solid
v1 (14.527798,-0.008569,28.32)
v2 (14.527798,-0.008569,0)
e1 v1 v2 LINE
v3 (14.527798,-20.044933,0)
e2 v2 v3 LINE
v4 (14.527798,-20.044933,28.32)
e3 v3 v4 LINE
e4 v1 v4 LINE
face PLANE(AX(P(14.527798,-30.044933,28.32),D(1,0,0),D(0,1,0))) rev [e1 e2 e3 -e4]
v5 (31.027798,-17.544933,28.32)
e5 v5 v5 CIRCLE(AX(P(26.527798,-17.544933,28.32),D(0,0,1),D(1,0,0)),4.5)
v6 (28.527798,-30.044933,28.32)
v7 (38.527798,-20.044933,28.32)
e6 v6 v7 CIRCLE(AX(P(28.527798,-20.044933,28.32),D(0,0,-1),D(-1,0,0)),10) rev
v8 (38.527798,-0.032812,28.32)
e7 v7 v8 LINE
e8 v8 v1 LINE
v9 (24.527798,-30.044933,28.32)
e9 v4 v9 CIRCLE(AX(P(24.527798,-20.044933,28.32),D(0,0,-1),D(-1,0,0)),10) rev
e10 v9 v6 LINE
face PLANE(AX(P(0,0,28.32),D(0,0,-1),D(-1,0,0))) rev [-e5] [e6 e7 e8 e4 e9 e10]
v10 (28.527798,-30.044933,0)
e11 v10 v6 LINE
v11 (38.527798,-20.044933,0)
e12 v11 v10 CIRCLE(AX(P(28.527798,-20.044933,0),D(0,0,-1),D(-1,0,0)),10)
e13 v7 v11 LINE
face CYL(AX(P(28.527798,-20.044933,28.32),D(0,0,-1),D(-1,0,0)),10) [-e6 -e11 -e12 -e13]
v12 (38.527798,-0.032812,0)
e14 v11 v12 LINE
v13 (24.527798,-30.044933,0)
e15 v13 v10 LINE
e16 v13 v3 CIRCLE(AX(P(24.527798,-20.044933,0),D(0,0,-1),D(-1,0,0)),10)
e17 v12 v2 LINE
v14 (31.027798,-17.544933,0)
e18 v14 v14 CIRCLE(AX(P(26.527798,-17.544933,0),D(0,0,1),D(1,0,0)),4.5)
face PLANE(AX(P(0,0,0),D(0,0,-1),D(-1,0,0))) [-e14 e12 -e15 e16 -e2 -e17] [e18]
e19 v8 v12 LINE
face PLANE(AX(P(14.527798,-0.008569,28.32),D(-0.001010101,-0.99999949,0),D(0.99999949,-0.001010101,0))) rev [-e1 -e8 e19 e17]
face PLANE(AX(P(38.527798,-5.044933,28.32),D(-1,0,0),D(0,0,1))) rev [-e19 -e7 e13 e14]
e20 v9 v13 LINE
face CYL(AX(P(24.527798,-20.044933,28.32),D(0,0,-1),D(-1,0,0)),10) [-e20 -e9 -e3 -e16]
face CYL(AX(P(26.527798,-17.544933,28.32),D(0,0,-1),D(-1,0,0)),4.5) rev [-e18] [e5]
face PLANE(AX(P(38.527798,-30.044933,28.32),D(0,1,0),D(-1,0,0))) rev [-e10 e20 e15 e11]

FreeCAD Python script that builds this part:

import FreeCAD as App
import Part
import Sketcher
Q = App.Units.Quantity


def edges_at(feature, points):
    """Names of the edges that pass closest to the given points."""
    edges = feature.Shape.Edges
    near = lambda p: min(range(len(edges)), key=lambda i: edges[i].distToShape(Part.Vertex(*p))[0])
    return sorted({f"Edge{near(p) + 1}" for p in points})

doc = App.newDocument("Part")
body = doc.addObject("PartDesign::Body", "Body")

sketch1 = doc.addObject("Sketcher::SketchObject", "Sketch")
body.addObject(sketch1)
sketch1.AttachmentSupport = (doc.XY_Plane, [""])
sketch1.MapMode = "FlatFace"
sketch1.addGeometry(Part.LineSegment(App.Vector(38.527798, -0.032812, 0), App.Vector(14.527798, -0.008569, 0)), False)
sketch1.addGeometry(Part.LineSegment(App.Vector(14.527798, -0.008569, 0), App.Vector(14.527798, -30.044933, 0)), False)
sketch1.addGeometry(Part.LineSegment(App.Vector(14.527798, -30.044933, 0), App.Vector(38.527798, -30.044933, 0)), False)
sketch1.addGeometry(Part.LineSegment(App.Vector(38.527798, -30.044933, 0), App.Vector(38.527798, -0.032812, 0)), False)
sketch1.addGeometry(Part.Circle(App.Vector(26.527798, -17.544933, 0), App.Vector(0, 0, 1), 4.5), False)
sketch1.addConstraint(Sketcher.Constraint("Coincident", 0, 2, 1, 1))
sketch1.addConstraint(Sketcher.Constraint("Coincident", 1, 2, 2, 1))
sketch1.addConstraint(Sketcher.Constraint("Coincident", 2, 2, 3, 1))
sketch1.addConstraint(Sketcher.Constraint("Coincident", 3, 2, 0, 1))
sketch1.addConstraint(Sketcher.Constraint("Vertical", 1))
sketch1.addConstraint(Sketcher.Constraint("Horizontal", 2))
sketch1.addConstraint(Sketcher.Constraint("Vertical", 3))
sketch1.addConstraint(Sketcher.Constraint("Diameter", 4, Q("9 mm")))
sketch1.addConstraint(Sketcher.Constraint("DistanceX", 2, 1, 2, 2, Q("24 mm")))
sketch1.addConstraint(Sketcher.Constraint("DistanceX", 0, 2, 4, 3, Q("12 mm")))
sketch1.addConstraint(Sketcher.Constraint("DistanceY", 1, 2, 4, 3, Q("12.5 mm")))
sketch1.addConstraint(Sketcher.Constraint("DistanceY", 3, 1, 3, 2, Q("30.012121 mm")))
sketch1.addConstraint(Sketcher.Constraint("DistanceX", -1, 1, 4, 3, Q("26.527798 mm")))
sketch1.addConstraint(Sketcher.Constraint("DistanceY", 1, 2, 1, 1, Q("30.036364 mm")))
sketch1.addConstraint(Sketcher.Constraint("DistanceY", 0, 2, -1, 1, Q("0.008569 mm")))
pad1 = doc.addObject("PartDesign::Pad", "Pad")
body.addObject(pad1)
pad1.Profile = sketch1
pad1.Length = 28.32
doc.recompute()

fillet = doc.addObject("PartDesign::Fillet", "Fillet")
body.addObject(fillet)
fillet.Base = (pad1, edges_at(pad1, [(14.528, -30.045, 14.16), (38.528, -30.045, 14.16)]))
fillet.Radius = 10

doc.recompute()
